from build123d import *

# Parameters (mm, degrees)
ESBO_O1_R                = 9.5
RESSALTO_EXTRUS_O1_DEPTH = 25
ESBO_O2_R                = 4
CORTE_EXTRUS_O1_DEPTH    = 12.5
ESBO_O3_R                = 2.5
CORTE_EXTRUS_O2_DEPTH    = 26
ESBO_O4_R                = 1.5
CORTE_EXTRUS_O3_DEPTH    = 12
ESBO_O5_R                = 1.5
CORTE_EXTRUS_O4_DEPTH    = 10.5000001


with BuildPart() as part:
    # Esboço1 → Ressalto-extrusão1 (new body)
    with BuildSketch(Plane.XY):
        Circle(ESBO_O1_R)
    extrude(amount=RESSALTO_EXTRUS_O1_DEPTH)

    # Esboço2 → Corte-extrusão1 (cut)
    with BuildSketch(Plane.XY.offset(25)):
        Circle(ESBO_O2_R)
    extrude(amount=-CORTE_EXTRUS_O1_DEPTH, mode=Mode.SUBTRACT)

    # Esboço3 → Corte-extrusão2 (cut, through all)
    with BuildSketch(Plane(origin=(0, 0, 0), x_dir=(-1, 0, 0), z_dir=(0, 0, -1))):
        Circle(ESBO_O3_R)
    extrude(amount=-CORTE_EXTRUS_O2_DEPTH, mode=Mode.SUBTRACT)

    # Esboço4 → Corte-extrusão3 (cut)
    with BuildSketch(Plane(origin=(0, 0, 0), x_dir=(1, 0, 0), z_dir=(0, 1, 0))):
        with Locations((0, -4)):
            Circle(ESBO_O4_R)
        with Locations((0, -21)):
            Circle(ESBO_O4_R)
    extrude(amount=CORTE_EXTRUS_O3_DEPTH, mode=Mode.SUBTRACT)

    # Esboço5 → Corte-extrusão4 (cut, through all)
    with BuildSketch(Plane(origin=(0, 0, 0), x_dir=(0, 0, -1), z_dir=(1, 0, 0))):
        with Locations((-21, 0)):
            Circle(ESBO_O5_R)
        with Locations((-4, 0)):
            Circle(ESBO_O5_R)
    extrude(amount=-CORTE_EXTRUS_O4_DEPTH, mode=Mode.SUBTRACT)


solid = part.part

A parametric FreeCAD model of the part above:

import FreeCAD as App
import Part
import Sketcher
from FreeCAD import Vector
Q = App.Units.Quantity

doc = App.newDocument("Part")
body = doc.addObject("PartDesign::Body", "Body")

# Sketch on XY plane
sketch1 = doc.addObject("Sketcher::SketchObject", "Sketch")
body.addObject(sketch1)
sketch1.AttachmentSupport = (doc.XY_Plane, [""])
sketch1.MapMode = "FlatFace"
sketch1.addGeometry(Part.Circle(Vector(0, 0, 0), Vector(0, 0, 1), 9.5), False)
sketch1.addConstraint(Sketcher.Constraint("Coincident", 0, 3, -1, 1))
sketch1.addConstraint(Sketcher.Constraint("Diameter", 0, Q("19 mm")))
pad1 = doc.addObject("PartDesign::Pad", "Pad")
body.addObject(pad1)
pad1.Profile = sketch1
pad1.Length = 25

# Sketch on XY plane
sketch2 = doc.addObject("Sketcher::SketchObject", "Sketch001")
body.addObject(sketch2)
sketch2.AttachmentSupport = (doc.XY_Plane, [""])
sketch2.MapMode = "FlatFace"
sketch2.AttachmentOffset = App.Placement(Vector(0, 0, 25), App.Rotation())
sketch2.addGeometry(Part.Circle(Vector(0, 0, 0), Vector(0, 0, 1), 4), False)
sketch2.addConstraint(Sketcher.Constraint("Coincident", 0, 3, -1, 1))
sketch2.addConstraint(Sketcher.Constraint("Diameter", 0, Q("8 mm")))
pocket1 = doc.addObject("PartDesign::Pocket", "Pocket")
body.addObject(pocket1)
pocket1.Profile = sketch2
pocket1.Length = 12.5

# Sketch on XY plane
sketch3 = doc.addObject("Sketcher::SketchObject", "Sketch002")
body.addObject(sketch3)
sketch3.AttachmentSupport = (doc.XY_Plane, [""])
sketch3.MapMode = "FlatFace"
sketch3.addGeometry(Part.Circle(Vector(0, 0, 0), Vector(0, 0, 1), 2.5), False)
sketch3.addConstraint(Sketcher.Constraint("Coincident", 0, 3, -1, 1))
sketch3.addConstraint(Sketcher.Constraint("Diameter", 0, Q("5 mm")))
pocket2 = doc.addObject("PartDesign::Pocket", "Pocket001")
body.addObject(pocket2)
pocket2.Profile = sketch3
pocket2.Type = "ThroughAll"
pocket2.Reversed = True

# Sketch on XZ plane
sketch4 = doc.addObject("Sketcher::SketchObject", "Sketch003")
body.addObject(sketch4)
sketch4.AttachmentSupport = (doc.XZ_Plane, [""])
sketch4.MapMode = "FlatFace"
sketch4.addGeometry(Part.Circle(Vector(0, 4, 0), Vector(0, 0, 1), 1.5), False)
sketch4.addGeometry(Part.Circle(Vector(0, 21, 0), Vector(0, 0, 1), 1.5), False)
sketch4.addConstraint(Sketcher.Constraint("Equal", 0, 1))
sketch4.addConstraint(Sketcher.Constraint("PointOnObject", 0, 3, -2))
sketch4.addConstraint(Sketcher.Constraint("PointOnObject", 1, 3, -2))
sketch4.addConstraint(Sketcher.Constraint("Diameter", 0, Q("3 mm")))
sketch4.addConstraint(Sketcher.Constraint("DistanceY", -1, 1, 0, 3, Q("4 mm")))
sketch4.addConstraint(Sketcher.Constraint("DistanceY", -1, 1, 1, 3, Q("21 mm")))
pocket3 = doc.addObject("PartDesign::Pocket", "Pocket002")
body.addObject(pocket3)
pocket3.Profile = sketch4
pocket3.Length = 12

# Sketch on YZ plane
sketch5 = doc.addObject("Sketcher::SketchObject", "Sketch004")
body.addObject(sketch5)
sketch5.AttachmentSupport = (doc.YZ_Plane, [""])
sketch5.MapMode = "FlatFace"
sketch5.addGeometry(Part.Circle(Vector(0, 21, 0), Vector(0, 0, 1), 1.5), False)
sketch5.addGeometry(Part.Circle(Vector(0, 4, 0), Vector(0, 0, 1), 1.5), False)
sketch5.addConstraint(Sketcher.Constraint("Equal", 0, 1))
sketch5.addConstraint(Sketcher.Constraint("PointOnObject", 0, 3, -2))
sketch5.addConstraint(Sketcher.Constraint("PointOnObject", 1, 3, -2))
sketch5.addConstraint(Sketcher.Constraint("Diameter", 0, Q("3 mm")))
sketch5.addConstraint(Sketcher.Constraint("DistanceY", -1, 1, 0, 3, Q("21 mm")))
sketch5.addConstraint(Sketcher.Constraint("DistanceY", -1, 1, 1, 3, Q("4 mm")))
pocket4 = doc.addObject("PartDesign::Pocket", "Pocket003")
body.addObject(pocket4)
pocket4.Profile = sketch5
pocket4.Type = "ThroughAll"

doc.recompute()
